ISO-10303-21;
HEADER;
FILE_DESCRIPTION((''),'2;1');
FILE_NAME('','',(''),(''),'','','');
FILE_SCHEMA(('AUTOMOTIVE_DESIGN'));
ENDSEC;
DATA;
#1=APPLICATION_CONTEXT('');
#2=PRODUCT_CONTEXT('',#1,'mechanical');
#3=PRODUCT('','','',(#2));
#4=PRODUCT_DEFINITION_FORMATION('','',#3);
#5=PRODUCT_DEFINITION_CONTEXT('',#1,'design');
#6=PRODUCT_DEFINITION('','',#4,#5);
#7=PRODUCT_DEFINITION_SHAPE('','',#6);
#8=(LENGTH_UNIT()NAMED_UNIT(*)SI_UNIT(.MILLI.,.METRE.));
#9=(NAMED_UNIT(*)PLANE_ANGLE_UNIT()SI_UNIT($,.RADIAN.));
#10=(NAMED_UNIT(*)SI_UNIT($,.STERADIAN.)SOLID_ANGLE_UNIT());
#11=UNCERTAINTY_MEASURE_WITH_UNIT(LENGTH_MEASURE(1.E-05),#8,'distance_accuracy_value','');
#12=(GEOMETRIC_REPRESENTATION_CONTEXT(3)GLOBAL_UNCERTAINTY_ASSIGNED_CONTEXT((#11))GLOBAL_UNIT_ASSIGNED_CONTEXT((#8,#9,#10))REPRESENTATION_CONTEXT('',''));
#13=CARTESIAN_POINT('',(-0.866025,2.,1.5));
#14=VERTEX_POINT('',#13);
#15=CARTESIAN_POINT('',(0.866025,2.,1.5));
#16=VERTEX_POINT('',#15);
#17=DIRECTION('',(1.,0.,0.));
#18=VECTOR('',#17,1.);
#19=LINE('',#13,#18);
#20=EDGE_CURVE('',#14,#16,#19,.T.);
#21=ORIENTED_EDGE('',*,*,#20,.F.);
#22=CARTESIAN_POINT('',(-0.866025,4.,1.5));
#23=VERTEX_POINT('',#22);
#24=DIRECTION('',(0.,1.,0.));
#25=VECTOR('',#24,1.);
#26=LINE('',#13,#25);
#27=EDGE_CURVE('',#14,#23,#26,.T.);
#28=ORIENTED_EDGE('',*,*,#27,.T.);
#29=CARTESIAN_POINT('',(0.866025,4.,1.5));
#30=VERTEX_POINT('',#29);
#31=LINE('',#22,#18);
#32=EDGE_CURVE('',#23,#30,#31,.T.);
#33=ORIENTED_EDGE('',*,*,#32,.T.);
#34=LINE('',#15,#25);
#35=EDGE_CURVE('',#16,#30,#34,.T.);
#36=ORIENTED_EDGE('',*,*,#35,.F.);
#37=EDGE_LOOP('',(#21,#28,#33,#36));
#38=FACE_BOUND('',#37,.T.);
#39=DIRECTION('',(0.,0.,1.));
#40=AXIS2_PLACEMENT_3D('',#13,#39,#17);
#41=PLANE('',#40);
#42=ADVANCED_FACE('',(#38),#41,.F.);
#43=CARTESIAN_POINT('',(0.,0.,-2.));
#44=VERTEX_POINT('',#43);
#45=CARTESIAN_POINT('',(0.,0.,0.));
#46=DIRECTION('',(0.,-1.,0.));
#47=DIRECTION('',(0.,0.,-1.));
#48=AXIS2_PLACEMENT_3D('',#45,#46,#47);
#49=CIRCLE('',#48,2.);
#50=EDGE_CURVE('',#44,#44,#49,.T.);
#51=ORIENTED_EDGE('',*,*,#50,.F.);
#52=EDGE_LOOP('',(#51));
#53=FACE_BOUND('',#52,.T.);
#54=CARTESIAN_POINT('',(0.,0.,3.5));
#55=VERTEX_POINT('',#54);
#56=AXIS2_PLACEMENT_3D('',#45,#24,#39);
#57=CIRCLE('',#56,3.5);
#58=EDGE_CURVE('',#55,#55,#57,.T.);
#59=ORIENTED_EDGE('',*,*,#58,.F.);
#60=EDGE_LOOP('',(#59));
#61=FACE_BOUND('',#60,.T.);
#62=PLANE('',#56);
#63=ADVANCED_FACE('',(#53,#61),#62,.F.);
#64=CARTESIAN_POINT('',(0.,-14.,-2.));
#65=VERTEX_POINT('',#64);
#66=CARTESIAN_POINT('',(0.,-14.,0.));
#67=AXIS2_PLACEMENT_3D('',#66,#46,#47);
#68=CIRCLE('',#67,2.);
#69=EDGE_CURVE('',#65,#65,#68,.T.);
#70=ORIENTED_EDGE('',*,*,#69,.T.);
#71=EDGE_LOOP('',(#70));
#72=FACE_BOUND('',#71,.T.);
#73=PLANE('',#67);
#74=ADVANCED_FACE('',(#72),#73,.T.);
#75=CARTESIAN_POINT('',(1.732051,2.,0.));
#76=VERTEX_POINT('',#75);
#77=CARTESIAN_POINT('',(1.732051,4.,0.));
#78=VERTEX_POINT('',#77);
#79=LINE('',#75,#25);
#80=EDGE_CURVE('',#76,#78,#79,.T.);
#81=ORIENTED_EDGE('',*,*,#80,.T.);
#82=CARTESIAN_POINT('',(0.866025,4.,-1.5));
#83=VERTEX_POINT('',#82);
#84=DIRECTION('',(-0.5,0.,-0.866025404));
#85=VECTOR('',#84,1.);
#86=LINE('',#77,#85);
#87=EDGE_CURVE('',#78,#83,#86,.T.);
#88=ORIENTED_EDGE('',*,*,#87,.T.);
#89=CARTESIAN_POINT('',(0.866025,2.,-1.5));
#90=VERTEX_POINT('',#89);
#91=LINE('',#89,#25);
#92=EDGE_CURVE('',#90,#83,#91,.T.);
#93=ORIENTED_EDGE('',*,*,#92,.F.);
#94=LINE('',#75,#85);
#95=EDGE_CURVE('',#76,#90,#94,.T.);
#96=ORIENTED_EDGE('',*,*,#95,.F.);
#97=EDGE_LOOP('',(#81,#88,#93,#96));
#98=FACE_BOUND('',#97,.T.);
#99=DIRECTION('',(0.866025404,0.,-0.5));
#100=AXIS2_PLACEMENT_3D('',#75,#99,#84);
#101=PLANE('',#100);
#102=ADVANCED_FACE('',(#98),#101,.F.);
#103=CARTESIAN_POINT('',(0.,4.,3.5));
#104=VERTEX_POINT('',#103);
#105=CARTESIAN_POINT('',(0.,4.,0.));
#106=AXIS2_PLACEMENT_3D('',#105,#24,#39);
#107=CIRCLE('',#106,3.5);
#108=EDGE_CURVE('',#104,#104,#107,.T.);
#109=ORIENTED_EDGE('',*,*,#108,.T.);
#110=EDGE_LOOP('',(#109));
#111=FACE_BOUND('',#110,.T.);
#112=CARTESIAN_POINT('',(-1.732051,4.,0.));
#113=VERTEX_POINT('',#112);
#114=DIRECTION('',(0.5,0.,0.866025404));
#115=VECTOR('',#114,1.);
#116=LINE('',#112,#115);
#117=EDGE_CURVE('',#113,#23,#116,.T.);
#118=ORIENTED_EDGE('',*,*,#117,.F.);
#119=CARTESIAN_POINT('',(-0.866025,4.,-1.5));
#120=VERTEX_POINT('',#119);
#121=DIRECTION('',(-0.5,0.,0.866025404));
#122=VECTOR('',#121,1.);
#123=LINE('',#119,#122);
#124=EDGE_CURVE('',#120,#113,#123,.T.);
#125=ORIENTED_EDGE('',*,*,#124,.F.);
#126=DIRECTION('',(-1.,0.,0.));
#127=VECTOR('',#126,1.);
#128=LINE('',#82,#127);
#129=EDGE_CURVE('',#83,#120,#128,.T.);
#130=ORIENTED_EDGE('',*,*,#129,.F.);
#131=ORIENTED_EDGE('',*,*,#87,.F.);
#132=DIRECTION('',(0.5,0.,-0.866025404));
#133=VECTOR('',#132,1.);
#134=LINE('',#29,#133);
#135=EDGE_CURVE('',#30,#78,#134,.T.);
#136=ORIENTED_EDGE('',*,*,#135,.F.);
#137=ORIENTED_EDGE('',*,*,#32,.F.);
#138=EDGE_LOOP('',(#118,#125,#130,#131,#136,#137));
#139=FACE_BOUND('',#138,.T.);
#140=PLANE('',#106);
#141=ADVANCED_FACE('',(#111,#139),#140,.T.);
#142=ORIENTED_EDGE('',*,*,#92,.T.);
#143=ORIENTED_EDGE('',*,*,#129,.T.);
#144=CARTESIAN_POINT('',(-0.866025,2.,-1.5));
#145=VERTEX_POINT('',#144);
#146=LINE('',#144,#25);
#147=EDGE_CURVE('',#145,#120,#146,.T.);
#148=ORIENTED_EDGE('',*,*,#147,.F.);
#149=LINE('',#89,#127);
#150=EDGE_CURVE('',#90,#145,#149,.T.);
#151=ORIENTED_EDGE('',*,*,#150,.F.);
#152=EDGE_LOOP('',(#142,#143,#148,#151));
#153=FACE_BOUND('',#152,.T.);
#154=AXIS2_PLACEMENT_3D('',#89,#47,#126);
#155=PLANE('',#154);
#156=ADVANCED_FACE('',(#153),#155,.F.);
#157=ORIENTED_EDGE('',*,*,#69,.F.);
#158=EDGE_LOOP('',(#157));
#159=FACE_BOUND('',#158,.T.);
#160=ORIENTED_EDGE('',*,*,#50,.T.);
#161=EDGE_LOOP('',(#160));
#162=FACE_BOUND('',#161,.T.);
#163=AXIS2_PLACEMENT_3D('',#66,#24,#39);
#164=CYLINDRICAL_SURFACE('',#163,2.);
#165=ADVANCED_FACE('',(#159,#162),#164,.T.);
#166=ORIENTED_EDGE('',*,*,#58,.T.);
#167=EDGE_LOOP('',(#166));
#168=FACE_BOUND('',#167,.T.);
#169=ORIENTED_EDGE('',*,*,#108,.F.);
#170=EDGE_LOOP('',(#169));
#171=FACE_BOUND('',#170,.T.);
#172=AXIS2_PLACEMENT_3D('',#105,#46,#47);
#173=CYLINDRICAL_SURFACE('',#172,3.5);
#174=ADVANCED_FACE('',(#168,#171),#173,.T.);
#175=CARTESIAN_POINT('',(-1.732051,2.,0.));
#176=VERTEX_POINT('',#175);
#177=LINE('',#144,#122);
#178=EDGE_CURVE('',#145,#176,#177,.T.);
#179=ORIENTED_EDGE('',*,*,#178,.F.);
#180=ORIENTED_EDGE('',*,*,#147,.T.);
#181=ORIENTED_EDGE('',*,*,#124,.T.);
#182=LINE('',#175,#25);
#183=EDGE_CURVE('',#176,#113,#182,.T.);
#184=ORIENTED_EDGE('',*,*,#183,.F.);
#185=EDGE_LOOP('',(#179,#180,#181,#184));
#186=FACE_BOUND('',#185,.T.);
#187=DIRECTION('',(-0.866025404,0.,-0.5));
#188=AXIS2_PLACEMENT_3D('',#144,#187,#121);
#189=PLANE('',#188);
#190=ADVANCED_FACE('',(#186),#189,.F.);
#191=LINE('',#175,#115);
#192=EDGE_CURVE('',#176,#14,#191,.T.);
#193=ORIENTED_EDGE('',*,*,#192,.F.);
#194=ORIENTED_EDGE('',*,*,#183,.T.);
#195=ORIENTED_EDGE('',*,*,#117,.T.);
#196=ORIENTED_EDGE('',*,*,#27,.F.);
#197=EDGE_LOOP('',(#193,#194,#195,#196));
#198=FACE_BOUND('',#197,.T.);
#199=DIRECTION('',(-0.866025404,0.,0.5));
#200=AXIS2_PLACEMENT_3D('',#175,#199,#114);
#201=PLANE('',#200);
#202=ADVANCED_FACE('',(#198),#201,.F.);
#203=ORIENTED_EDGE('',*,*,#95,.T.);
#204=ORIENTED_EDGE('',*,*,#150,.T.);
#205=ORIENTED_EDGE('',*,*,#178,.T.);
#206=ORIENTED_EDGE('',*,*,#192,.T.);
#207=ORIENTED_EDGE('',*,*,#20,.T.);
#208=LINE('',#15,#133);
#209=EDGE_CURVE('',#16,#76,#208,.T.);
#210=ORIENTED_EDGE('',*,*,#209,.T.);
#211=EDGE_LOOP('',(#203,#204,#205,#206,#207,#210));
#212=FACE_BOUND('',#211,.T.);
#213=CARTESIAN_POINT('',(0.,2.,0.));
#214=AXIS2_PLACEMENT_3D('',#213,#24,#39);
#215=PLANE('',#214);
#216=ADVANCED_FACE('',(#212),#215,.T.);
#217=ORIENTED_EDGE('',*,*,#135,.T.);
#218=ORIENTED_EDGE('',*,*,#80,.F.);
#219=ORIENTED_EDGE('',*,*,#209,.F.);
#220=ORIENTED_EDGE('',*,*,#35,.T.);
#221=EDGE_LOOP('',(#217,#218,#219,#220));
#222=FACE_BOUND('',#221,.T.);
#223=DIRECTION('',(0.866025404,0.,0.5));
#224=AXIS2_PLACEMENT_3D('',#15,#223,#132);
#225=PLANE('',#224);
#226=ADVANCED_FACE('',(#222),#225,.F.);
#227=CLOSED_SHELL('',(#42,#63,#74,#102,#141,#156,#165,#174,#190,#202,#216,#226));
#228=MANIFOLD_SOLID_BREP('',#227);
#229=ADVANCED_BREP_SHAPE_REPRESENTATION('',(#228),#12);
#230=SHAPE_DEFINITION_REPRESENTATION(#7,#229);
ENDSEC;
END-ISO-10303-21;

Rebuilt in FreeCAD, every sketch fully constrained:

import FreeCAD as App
import Part
import Sketcher
from FreeCAD import Vector
Q = App.Units.Quantity

doc = App.newDocument("Part")
params = doc.addObject("Spreadsheet::Sheet", "Params")
for row, (alias, value) in enumerate([
    ("sketch1_diameter", "7 mm"),
    ("pad1_length", "4 mm"),
    ("pocket1_length", "2 mm"),
    ("sketch3_diameter", "4 mm"),
    ("pad2_length", "14 mm"),
], start=1):
    params.set(f"A{row}", alias)
    params.set(f"B{row}", "=" + value)
    params.setAlias(f"B{row}", alias)

body = doc.addObject("PartDesign::Body", "Body")

sketch1 = body.newObject("Sketcher::SketchObject", "Sketch")
sketch1.AttachmentSupport = (doc.getObject("XZ_Plane"), [""])
sketch1.MapMode = "FlatFace"
sketch1.addGeometry(Part.Circle(Vector(0, 0, 0), Vector(0, 0, 1), 3.5), False)
sketch1.addConstraint([
    Sketcher.Constraint("Coincident", 0, 3, -1, 1),
    Sketcher.Constraint("Diameter", 0, Q("7 mm")),
])
sketch1.setExpression("Constraints[1]", "Params.sketch1_diameter")
pad1 = body.newObject("PartDesign::Pad", "Pad")
pad1.Profile = sketch1
pad1.setExpression("Length", "Params.pad1_length")
pad1.Reversed = True

sketch2 = body.newObject("Sketcher::SketchObject", "Sketch001")
sketch2.AttachmentSupport = (doc.getObject("XZ_Plane"), [""])
sketch2.MapMode = "FlatFace"
sketch2.AttachmentOffset = App.Placement(Vector(0, 0, -4), App.Rotation())
sketch2.addGeometry([
    Part.LineSegment(Vector(1.7, 0, 0), Vector(0.9, -1.5, 0)),
    Part.LineSegment(Vector(0.9, -1.5, 0), Vector(-0.9, -1.5, 0)),
    Part.LineSegment(Vector(-0.9, -1.5, 0), Vector(-1.7, 0, 0)),
    Part.LineSegment(Vector(-1.7, 0, 0), Vector(-0.9, 1.5, 0)),
    Part.LineSegment(Vector(-0.9, 1.5, 0), Vector(0.9, 1.5, 0)),
    Part.LineSegment(Vector(0.9, 1.5, 0), Vector(1.7, 0, 0)),
], False)
sketch2.addConstraint([
    Sketcher.Constraint("Coincident", 0, 2, 1, 1),
    Sketcher.Constraint("Coincident", 1, 2, 2, 1),
    Sketcher.Constraint("Coincident", 2, 2, 3, 1),
    Sketcher.Constraint("Coincident", 3, 2, 4, 1),
    Sketcher.Constraint("Coincident", 4, 2, 5, 1),
    Sketcher.Constraint("Coincident", 5, 2, 0, 1),
    Sketcher.Constraint("Horizontal", 1),
    Sketcher.Constraint("Horizontal", 4),
    Sketcher.Constraint("Symmetric", 0, 2, 3, 2, -1, 1),
    Sketcher.Constraint("Symmetric", 2, 2, 5, 2, -1, 1),
    Sketcher.Constraint("PointOnObject", 2, 2, -1),
    Sketcher.Constraint("Parallel", 2, 5),
    Sketcher.Constraint("Vertical", 1, 2, 3, 2),
    Sketcher.Constraint("Angle", 0, Q("-120 deg")),
    Sketcher.Constraint("DistanceY", 1, 2, 3, 2, Q("3 mm")),
    Sketcher.Constraint("DistanceX", 1, 2, 1, 1, Q("1.732051 mm")),
])
pocket1 = body.newObject("PartDesign::Pocket", "Pocket")
pocket1.Profile = sketch2
pocket1.setExpression("Length", "Params.pocket1_length")
pocket1.Reversed = True

sketch3 = body.newObject("Sketcher::SketchObject", "Sketch002")
sketch3.AttachmentSupport = (doc.getObject("XZ_Plane"), [""])
sketch3.MapMode = "FlatFace"
sketch3.addGeometry(Part.Circle(Vector(0, 0, 0), Vector(0, 0, 1), 2), False)
sketch3.addConstraint([
    Sketcher.Constraint("Coincident", 0, 3, -1, 1),
    Sketcher.Constraint("Diameter", 0, Q("4 mm")),
])
sketch3.setExpression("Constraints[1]", "Params.sketch3_diameter")
pad2 = body.newObject("PartDesign::Pad", "Pad001")
pad2.Profile = sketch3
pad2.setExpression("Length", "Params.pad2_length")

doc.recompute()
